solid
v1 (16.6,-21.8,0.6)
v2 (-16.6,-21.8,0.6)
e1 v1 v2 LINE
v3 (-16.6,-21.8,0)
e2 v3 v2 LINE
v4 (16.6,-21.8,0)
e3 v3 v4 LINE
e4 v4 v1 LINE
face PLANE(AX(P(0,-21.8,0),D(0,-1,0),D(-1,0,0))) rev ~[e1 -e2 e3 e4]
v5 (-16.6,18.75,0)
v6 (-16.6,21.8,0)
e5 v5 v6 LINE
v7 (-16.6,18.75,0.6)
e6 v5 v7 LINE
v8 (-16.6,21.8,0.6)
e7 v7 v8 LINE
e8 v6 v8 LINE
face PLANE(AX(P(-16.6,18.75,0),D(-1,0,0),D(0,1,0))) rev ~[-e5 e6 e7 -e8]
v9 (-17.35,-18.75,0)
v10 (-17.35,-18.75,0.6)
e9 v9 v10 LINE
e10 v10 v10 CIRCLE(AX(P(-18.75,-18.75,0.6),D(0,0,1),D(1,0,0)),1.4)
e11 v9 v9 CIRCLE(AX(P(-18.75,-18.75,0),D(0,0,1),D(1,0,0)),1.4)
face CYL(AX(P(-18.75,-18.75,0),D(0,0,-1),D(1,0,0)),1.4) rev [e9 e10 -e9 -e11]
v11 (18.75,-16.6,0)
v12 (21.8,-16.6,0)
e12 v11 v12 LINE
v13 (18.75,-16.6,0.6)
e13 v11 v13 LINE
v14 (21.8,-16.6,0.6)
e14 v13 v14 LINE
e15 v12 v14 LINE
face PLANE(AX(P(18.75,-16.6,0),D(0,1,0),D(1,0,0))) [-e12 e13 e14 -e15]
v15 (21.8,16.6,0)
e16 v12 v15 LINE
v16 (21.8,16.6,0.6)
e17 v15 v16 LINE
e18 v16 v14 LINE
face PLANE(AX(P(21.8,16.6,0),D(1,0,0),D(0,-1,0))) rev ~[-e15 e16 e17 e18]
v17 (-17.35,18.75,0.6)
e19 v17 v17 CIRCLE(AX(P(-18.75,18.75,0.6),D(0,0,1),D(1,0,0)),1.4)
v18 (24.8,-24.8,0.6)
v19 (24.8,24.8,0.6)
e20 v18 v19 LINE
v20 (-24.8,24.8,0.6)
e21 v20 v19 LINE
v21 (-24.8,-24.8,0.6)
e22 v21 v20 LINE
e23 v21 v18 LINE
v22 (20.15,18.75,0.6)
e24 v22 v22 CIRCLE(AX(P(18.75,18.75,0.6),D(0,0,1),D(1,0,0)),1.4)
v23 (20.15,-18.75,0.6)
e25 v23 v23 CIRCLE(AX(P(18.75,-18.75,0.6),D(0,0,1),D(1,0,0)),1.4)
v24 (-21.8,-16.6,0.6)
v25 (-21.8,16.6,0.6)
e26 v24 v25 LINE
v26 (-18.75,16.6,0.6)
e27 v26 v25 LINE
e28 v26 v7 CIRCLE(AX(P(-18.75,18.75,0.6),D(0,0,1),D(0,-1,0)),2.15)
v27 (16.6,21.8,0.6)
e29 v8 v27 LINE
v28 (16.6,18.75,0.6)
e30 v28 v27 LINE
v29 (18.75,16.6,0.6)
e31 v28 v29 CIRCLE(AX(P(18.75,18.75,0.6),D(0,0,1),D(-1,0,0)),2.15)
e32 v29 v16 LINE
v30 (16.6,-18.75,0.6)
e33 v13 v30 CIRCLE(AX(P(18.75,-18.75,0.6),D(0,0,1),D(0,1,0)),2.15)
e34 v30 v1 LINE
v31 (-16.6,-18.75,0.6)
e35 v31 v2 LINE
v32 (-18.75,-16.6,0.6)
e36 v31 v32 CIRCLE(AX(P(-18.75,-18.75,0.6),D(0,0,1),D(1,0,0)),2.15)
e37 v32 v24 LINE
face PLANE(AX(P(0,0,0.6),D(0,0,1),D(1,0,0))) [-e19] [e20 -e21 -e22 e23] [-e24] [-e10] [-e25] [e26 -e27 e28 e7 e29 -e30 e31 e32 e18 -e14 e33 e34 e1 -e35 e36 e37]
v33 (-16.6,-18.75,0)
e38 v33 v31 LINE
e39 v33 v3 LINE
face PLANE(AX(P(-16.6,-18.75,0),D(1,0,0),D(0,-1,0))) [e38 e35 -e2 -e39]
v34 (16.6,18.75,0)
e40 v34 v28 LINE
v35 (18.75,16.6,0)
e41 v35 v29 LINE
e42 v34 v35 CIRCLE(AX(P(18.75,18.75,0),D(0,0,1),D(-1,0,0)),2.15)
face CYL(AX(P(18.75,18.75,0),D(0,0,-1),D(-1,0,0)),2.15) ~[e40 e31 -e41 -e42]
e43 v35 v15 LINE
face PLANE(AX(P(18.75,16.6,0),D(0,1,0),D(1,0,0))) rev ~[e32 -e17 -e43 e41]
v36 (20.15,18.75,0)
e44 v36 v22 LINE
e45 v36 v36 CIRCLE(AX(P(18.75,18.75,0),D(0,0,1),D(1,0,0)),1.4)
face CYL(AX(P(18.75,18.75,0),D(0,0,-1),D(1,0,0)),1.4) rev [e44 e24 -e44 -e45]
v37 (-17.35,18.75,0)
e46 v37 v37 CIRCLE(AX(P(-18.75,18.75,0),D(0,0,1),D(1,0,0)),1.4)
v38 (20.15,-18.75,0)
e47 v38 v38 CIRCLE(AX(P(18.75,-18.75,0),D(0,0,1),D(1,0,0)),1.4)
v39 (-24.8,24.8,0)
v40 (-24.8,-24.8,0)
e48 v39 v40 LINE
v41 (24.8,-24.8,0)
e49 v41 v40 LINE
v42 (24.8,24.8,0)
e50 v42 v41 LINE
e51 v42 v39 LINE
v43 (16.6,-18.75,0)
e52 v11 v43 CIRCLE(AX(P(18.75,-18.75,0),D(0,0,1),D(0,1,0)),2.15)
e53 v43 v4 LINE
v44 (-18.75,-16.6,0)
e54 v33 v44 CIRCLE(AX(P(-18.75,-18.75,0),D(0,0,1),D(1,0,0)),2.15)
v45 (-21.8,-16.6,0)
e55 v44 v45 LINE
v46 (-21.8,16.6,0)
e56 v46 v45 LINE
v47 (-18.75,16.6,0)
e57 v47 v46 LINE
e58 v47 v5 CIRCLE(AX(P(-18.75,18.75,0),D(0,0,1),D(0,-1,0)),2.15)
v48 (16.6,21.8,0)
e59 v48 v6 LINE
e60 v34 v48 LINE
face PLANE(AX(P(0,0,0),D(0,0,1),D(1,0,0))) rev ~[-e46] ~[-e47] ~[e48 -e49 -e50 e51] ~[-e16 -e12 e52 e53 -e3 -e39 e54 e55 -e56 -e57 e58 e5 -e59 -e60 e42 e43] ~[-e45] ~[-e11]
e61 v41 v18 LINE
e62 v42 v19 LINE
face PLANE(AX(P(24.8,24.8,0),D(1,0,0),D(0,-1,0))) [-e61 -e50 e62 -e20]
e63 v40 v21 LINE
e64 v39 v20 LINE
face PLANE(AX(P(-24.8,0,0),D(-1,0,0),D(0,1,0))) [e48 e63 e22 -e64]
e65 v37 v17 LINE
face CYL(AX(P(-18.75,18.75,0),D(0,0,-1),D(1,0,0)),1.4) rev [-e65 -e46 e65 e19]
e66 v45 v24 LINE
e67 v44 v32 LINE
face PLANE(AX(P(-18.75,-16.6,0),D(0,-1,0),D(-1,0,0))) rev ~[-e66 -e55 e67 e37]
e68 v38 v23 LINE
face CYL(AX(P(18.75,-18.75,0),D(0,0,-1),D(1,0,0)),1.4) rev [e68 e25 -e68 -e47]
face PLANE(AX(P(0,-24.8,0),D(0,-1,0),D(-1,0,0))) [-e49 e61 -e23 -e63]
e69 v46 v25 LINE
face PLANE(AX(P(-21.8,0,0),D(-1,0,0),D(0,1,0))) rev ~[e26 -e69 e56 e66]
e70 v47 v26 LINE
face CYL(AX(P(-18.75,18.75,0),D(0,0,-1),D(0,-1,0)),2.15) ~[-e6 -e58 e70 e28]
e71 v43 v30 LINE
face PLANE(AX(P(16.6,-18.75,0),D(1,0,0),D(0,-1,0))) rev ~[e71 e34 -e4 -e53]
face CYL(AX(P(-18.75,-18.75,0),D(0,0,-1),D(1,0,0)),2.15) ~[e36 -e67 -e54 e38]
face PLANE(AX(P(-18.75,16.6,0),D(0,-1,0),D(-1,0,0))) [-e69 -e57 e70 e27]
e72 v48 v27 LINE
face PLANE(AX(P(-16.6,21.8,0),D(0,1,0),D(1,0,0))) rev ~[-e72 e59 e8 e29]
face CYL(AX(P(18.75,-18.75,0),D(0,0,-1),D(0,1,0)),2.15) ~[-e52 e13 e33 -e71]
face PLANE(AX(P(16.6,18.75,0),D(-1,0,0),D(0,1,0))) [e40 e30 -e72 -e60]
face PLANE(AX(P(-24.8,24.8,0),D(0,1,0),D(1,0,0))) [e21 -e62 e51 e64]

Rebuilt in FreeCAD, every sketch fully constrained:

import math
import FreeCAD as App
import Part
import Sketcher
Q = App.Units.Quantity


def add_polygon(sketch, points):
    """Adds a closed chain of lines whose ends are joined by coincident constraints."""
    first, n = sketch.GeometryCount, len(points)
    for a, b in zip(points, points[1:] + points[:1]):
        sketch.addGeometry(Part.LineSegment(App.Vector(*a, 0), App.Vector(*b, 0)), False)
    for i in range(n):
        sketch.addConstraint(Sketcher.Constraint("Coincident", first + i, 2, first + (i + 1) % n, 1))

doc = App.newDocument("Part")
body = doc.addObject("PartDesign::Body", "Body")

# Sketch on XY plane
sketch1 = body.newObject("Sketcher::SketchObject", "Sketch")
sketch1.AttachmentSupport = (doc.getObject("XY_Plane"), [""])
sketch1.MapMode = "FlatFace"
add_polygon(sketch1, [(-24.8, 24.8), (-24.8, -24.8), (24.8, -24.8), (24.8, 24.8)])  # lines 0-3
sketch1.addGeometry(Part.LineSegment(App.Vector(-16.6, 21.8, 0), App.Vector(16.6, 21.8, 0)), False)  # 4
sketch1.addGeometry(Part.LineSegment(App.Vector(16.6, 21.8, 0), App.Vector(16.6, 18.8, 0)), False)  # 5
sketch1.addGeometry(Part.ArcOfCircle(Part.Circle(App.Vector(18.8, 18.8, 0), App.Vector(0, 0, 1), 2.1), math.radians(180), math.radians(270)), False)  # 6
sketch1.addGeometry(Part.LineSegment(App.Vector(18.8, 16.6, 0), App.Vector(21.8, 16.6, 0)), False)  # 7
sketch1.addGeometry(Part.LineSegment(App.Vector(21.8, 16.6, 0), App.Vector(21.8, -16.6, 0)), False)  # 8
sketch1.addGeometry(Part.LineSegment(App.Vector(21.8, -16.6, 0), App.Vector(18.8, -16.6, 0)), False)  # 9
sketch1.addGeometry(Part.ArcOfCircle(Part.Circle(App.Vector(18.8, -18.8, 0), App.Vector(0, 0, 1), 2.1), math.radians(90), math.radians(180)), False)  # 10
sketch1.addGeometry(Part.LineSegment(App.Vector(16.6, -18.8, 0), App.Vector(16.6, -21.8, 0)), False)  # 11
sketch1.addGeometry(Part.LineSegment(App.Vector(16.6, -21.8, 0), App.Vector(-16.6, -21.8, 0)), False)  # 12
sketch1.addGeometry(Part.LineSegment(App.Vector(-16.6, -21.8, 0), App.Vector(-16.6, -18.8, 0)), False)  # 13
sketch1.addGeometry(Part.ArcOfCircle(Part.Circle(App.Vector(-18.8, -18.8, 0), App.Vector(0, 0, 1), 2.1), math.radians(0), math.radians(90)), False)  # 14
sketch1.addGeometry(Part.LineSegment(App.Vector(-18.8, -16.6, 0), App.Vector(-21.8, -16.6, 0)), False)  # 15
sketch1.addGeometry(Part.LineSegment(App.Vector(-21.8, -16.6, 0), App.Vector(-21.8, 16.6, 0)), False)  # 16
sketch1.addGeometry(Part.LineSegment(App.Vector(-21.8, 16.6, 0), App.Vector(-18.8, 16.6, 0)), False)  # 17
sketch1.addGeometry(Part.ArcOfCircle(Part.Circle(App.Vector(-18.8, 18.8, 0), App.Vector(0, 0, 1), 2.1), math.radians(-90), math.radians(0)), False)  # 18
sketch1.addGeometry(Part.LineSegment(App.Vector(-16.6, 18.8, 0), App.Vector(-16.6, 21.8, 0)), False)  # 19
sketch1.addGeometry(Part.Circle(App.Vector(-18.8, 18.8, 0), App.Vector(0, 0, 1), 1.4), False)  # 20
sketch1.addGeometry(Part.Circle(App.Vector(18.8, 18.8, 0), App.Vector(0, 0, 1), 1.4), False)  # 21
sketch1.addGeometry(Part.Circle(App.Vector(-18.8, -18.8, 0), App.Vector(0, 0, 1), 1.4), False)  # 22
sketch1.addGeometry(Part.Circle(App.Vector(18.8, -18.8, 0), App.Vector(0, 0, 1), 1.4), False)  # 23
sketch1.addConstraint(Sketcher.Constraint("Coincident", 4, 2, 5, 1))
sketch1.addConstraint(Sketcher.Constraint("Tangent", 5, 2, 6, 1))
sketch1.addConstraint(Sketcher.Constraint("Tangent", 6, 2, 7, 1))
sketch1.addConstraint(Sketcher.Constraint("Coincident", 7, 2, 8, 1))
sketch1.addConstraint(Sketcher.Constraint("Coincident", 8, 2, 9, 1))
sketch1.addConstraint(Sketcher.Constraint("Tangent", 9, 2, 10, 1))
sketch1.addConstraint(Sketcher.Constraint("Tangent", 10, 2, 11, 1))
sketch1.addConstraint(Sketcher.Constraint("Coincident", 11, 2, 12, 1))
sketch1.addConstraint(Sketcher.Constraint("Coincident", 12, 2, 13, 1))
sketch1.addConstraint(Sketcher.Constraint("Tangent", 13, 2, 14, 1))
sketch1.addConstraint(Sketcher.Constraint("Tangent", 14, 2, 15, 1))
sketch1.addConstraint(Sketcher.Constraint("Coincident", 15, 2, 16, 1))
sketch1.addConstraint(Sketcher.Constraint("Coincident", 16, 2, 17, 1))
sketch1.addConstraint(Sketcher.Constraint("Tangent", 17, 2, 18, 1))
sketch1.addConstraint(Sketcher.Constraint("Tangent", 18, 2, 19, 1))
sketch1.addConstraint(Sketcher.Constraint("Coincident", 19, 2, 4, 1))
sketch1.addConstraint(Sketcher.Constraint("Vertical", 0))
sketch1.addConstraint(Sketcher.Constraint("Horizontal", 1))
sketch1.addConstraint(Sketcher.Constraint("Vertical", 2))
sketch1.addConstraint(Sketcher.Constraint("Horizontal", 3))
sketch1.addConstraint(Sketcher.Constraint("Horizontal", 4))
sketch1.addConstraint(Sketcher.Constraint("Vertical", 5))
sketch1.addConstraint(Sketcher.Constraint("Horizontal", 7))
sketch1.addConstraint(Sketcher.Constraint("Vertical", 8))
sketch1.addConstraint(Sketcher.Constraint("Horizontal", 9))
sketch1.addConstraint(Sketcher.Constraint("Vertical", 11))
sketch1.addConstraint(Sketcher.Constraint("Horizontal", 12))
sketch1.addConstraint(Sketcher.Constraint("Vertical", 13))
sketch1.addConstraint(Sketcher.Constraint("Horizontal", 15))
sketch1.addConstraint(Sketcher.Constraint("Vertical", 16))
sketch1.addConstraint(Sketcher.Constraint("Horizontal", 17))
sketch1.addConstraint(Sketcher.Constraint("Vertical", 19))
sketch1.addConstraint(Sketcher.Constraint("Coincident", 20, 3, 18, 3))
sketch1.addConstraint(Sketcher.Constraint("Coincident", 21, 3, 6, 3))
sketch1.addConstraint(Sketcher.Constraint("Coincident", 22, 3, 14, 3))
sketch1.addConstraint(Sketcher.Constraint("Coincident", 23, 3, 10, 3))
sketch1.addConstraint(Sketcher.Constraint("Equal", 6, 10))
sketch1.addConstraint(Sketcher.Constraint("Equal", 10, 14))
sketch1.addConstraint(Sketcher.Constraint("Equal", 14, 18))
sketch1.addConstraint(Sketcher.Constraint("Equal", 20, 21))
sketch1.addConstraint(Sketcher.Constraint("Equal", 21, 22))
sketch1.addConstraint(Sketcher.Constraint("Equal", 22, 23))
sketch1.addConstraint(Sketcher.Constraint("Symmetric", 6, 3, 14, 3, -1, 1))
sketch1.addConstraint(Sketcher.Constraint("Symmetric", 10, 3, 18, 3, -1, 1))
sketch1.addConstraint(Sketcher.Constraint("Symmetric", 0, 2, 2, 2, -1, 1))
sketch1.addConstraint(Sketcher.Constraint("Symmetric", 10, 3, 14, 3, -2))
sketch1.addConstraint(Sketcher.Constraint("Equal", 9, 15))
sketch1.addConstraint(Sketcher.Constraint("Equal", 3, 0))
sketch1.addConstraint(Sketcher.Constraint("Equal", 17, 5))
sketch1.addConstraint(Sketcher.Constraint("Equal", 12, 8))
sketch1.addConstraint(Sketcher.Constraint("Equal", 5, 11))
sketch1.addConstraint(Sketcher.Constraint("Diameter", 20, Q("2.8 mm")))
sketch1.addConstraint(Sketcher.Constraint("DistanceY", 4, 2, 2, 2, Q("3 mm")))
sketch1.addConstraint(Sketcher.Constraint("DistanceY", 10, 3, 6, 3, Q("37.5 mm")))
sketch1.addConstraint(Sketcher.Constraint("DistanceY", 6, 2, 4, 2, Q("5.2 mm")))
sketch1.addConstraint(Sketcher.Constraint("Radius", 6, Q("2.15 mm")))
pad1 = body.newObject("PartDesign::Pad", "Pad")
pad1.Profile = sketch1
pad1.Length = 0.6

doc.recompute()
